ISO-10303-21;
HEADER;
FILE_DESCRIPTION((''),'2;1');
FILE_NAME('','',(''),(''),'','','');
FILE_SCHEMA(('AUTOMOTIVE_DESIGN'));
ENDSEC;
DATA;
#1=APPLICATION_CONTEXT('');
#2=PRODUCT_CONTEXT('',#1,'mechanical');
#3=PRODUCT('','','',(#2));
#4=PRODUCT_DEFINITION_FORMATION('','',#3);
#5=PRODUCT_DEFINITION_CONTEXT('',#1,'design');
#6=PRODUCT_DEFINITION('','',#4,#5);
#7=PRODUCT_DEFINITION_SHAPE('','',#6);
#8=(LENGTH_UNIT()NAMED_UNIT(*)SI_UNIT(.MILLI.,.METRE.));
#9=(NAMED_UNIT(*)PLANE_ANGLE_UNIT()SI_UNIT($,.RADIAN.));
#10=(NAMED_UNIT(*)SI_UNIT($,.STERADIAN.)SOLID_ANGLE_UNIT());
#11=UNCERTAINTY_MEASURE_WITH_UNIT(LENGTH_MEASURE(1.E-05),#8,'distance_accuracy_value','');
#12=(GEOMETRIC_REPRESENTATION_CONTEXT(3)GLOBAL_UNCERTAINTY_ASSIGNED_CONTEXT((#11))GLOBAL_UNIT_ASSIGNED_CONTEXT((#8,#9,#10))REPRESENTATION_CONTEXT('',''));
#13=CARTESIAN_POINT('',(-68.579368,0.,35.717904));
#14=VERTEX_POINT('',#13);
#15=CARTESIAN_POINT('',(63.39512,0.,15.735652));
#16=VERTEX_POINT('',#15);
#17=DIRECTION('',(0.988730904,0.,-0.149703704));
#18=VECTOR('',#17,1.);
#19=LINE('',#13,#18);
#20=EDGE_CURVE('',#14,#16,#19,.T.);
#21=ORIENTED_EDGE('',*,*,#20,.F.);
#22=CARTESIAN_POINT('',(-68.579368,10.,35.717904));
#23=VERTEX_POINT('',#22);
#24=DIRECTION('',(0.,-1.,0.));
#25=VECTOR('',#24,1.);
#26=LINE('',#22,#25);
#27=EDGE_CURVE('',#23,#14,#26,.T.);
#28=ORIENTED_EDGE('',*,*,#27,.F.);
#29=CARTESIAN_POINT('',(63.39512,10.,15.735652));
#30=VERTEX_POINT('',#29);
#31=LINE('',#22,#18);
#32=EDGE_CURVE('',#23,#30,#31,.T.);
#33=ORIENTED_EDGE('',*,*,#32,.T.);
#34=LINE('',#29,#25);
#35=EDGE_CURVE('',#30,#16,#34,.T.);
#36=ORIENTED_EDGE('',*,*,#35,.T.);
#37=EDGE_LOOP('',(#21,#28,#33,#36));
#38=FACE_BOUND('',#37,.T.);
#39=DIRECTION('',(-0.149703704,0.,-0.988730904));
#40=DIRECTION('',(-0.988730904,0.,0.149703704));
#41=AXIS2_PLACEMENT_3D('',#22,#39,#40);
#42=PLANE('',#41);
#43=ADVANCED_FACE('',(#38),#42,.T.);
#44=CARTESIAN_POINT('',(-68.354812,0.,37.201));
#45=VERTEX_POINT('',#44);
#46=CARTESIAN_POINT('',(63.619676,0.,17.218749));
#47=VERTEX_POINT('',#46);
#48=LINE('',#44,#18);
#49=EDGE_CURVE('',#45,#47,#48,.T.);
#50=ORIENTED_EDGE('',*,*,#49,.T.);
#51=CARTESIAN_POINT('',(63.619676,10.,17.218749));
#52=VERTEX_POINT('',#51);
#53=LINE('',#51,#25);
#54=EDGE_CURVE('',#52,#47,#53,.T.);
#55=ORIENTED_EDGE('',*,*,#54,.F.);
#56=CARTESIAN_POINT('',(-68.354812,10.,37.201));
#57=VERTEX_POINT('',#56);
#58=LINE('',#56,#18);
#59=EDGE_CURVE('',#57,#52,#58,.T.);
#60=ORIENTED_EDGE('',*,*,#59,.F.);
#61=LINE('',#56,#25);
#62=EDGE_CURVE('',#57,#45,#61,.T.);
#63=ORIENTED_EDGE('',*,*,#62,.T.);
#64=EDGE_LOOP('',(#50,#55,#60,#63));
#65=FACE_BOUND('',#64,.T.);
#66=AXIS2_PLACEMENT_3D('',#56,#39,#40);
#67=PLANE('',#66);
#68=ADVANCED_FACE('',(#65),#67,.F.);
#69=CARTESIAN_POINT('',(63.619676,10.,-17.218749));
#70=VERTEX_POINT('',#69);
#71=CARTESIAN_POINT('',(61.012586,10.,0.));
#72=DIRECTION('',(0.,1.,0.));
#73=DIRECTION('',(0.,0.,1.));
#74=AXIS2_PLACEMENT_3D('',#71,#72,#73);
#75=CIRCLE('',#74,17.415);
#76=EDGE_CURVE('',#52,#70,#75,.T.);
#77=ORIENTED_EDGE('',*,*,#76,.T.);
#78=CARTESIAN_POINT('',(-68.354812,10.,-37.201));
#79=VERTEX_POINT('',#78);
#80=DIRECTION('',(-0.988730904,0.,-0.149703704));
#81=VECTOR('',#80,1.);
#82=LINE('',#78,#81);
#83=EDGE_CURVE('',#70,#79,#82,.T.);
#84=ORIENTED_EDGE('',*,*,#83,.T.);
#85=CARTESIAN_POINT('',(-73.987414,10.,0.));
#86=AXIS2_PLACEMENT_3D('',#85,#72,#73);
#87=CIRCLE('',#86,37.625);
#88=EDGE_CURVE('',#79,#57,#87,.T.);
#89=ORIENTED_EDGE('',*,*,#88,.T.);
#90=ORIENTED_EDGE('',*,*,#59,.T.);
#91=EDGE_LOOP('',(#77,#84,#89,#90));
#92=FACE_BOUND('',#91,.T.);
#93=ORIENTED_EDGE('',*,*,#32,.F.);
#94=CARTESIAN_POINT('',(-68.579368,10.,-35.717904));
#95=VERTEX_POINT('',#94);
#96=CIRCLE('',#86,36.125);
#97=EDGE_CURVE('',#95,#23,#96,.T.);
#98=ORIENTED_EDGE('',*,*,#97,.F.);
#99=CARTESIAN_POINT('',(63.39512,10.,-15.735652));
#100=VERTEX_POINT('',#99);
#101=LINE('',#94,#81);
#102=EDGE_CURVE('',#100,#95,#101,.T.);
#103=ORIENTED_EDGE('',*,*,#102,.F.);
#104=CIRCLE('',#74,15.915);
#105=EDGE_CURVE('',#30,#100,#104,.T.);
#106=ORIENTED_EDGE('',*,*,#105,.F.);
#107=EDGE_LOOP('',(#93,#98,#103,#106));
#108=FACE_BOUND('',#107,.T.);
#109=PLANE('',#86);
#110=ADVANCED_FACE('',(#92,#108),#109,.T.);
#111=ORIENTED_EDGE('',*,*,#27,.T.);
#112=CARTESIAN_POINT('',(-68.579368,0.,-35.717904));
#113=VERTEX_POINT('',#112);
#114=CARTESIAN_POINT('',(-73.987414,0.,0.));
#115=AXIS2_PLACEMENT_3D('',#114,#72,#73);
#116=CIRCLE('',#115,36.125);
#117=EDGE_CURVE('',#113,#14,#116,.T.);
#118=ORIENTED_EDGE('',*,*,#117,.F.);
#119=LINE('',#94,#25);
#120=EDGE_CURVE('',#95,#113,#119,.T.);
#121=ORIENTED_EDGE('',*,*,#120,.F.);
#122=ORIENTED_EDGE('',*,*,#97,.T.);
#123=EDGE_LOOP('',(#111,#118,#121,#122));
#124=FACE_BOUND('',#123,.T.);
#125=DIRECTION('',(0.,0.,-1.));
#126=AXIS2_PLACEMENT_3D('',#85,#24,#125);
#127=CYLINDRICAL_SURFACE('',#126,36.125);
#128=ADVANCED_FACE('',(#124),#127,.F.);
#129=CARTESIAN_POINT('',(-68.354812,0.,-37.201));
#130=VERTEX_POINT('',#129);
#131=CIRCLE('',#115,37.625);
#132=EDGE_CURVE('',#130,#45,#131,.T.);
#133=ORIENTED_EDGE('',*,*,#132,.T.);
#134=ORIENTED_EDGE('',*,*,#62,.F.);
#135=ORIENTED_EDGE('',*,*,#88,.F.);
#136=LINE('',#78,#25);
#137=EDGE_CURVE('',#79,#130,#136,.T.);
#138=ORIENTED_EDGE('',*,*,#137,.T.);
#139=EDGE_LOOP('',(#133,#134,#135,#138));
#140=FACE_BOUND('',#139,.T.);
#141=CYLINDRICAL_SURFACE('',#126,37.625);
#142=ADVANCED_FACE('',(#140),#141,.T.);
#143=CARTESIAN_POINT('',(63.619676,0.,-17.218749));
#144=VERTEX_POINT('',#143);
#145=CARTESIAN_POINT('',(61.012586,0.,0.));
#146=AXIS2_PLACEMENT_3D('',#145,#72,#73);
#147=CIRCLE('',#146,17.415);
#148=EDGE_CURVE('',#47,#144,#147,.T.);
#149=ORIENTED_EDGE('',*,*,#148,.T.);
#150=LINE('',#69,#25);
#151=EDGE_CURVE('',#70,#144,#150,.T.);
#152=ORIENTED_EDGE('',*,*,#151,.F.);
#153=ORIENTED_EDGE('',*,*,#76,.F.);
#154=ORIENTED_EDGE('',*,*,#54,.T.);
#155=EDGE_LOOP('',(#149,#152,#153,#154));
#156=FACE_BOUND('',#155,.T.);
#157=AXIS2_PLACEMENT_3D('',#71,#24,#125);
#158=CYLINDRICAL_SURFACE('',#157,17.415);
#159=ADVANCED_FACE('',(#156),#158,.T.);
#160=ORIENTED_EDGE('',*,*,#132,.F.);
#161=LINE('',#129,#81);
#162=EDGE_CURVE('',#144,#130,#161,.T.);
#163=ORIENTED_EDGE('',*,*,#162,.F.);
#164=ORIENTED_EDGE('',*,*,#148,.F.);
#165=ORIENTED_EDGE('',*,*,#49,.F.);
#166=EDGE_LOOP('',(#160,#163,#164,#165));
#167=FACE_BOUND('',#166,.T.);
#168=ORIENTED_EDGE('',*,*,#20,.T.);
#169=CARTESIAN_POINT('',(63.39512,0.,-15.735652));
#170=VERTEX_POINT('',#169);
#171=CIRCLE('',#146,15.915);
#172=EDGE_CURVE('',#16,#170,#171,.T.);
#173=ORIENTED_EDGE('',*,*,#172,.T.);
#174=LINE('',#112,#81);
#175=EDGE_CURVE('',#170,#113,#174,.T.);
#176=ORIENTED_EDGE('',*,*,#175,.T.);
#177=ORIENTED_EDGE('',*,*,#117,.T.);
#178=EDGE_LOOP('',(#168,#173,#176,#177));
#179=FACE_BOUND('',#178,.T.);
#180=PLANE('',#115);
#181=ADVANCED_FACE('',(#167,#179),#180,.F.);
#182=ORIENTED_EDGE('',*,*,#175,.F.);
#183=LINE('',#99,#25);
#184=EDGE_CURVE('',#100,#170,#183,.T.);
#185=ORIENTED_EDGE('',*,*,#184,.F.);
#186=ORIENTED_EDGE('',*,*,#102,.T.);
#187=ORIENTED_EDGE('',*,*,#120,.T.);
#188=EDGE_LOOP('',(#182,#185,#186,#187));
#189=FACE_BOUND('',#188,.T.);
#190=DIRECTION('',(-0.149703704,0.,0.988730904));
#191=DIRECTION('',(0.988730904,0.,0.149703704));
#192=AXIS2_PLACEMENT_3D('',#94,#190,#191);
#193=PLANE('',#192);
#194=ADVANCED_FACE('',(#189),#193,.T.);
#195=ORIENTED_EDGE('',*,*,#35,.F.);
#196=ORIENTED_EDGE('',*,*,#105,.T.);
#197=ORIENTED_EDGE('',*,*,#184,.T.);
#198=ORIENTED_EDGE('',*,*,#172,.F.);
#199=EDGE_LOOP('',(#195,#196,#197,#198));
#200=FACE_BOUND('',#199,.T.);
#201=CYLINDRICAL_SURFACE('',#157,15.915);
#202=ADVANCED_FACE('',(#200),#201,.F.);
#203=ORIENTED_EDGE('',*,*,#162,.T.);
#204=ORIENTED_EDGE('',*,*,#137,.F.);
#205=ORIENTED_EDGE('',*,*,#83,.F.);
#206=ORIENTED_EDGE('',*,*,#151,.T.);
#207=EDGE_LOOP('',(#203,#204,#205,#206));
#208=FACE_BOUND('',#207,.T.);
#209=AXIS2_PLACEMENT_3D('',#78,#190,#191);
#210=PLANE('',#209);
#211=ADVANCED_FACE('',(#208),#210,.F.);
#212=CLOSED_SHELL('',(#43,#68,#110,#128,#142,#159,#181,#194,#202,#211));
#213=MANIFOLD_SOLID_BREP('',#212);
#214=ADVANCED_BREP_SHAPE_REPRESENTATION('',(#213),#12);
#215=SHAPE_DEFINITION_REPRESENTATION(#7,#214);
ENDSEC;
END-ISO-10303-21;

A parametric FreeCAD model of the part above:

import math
import FreeCAD as App
import Part
import Sketcher
Q = App.Units.Quantity

doc = App.newDocument("Part")
params = doc.addObject("Spreadsheet::Sheet", "Params")
for row, (alias, value) in enumerate([
    ("pad1_length", "10 mm"),
], start=1):
    params.set(f"A{row}", alias)
    params.set(f"B{row}", "=" + value)
    params.setAlias(f"B{row}", alias)

body = doc.addObject("PartDesign::Body", "Body")

sketch1 = body.newObject("Sketcher::SketchObject", "Sketch")
sketch1.AttachmentSupport = (doc.getObject("XZ_Plane"), [""])
sketch1.MapMode = "FlatFace"
sketch1.addGeometry([
    Part.LineSegment(App.Vector(63.619676, -17.218749, 0), App.Vector(-68.354812, -37.201, 0)),
    Part.ArcOfCircle(Part.Circle(App.Vector(-73.987414, 0, 0), App.Vector(0, 0, 1), 37.625), math.radians(81.390244), math.radians(278.609756)),
    Part.LineSegment(App.Vector(-68.354812, 37.201, 0), App.Vector(63.619676, 17.218749, 0)),
    Part.ArcOfCircle(Part.Circle(App.Vector(61.012586, 0, 0), App.Vector(0, 0, 1), 17.415), math.radians(-81.390244), math.radians(81.390244)),
    Part.LineSegment(App.Vector(-68.579368, -35.717904, 0), App.Vector(63.39512, -15.735652, 0)),
    Part.ArcOfCircle(Part.Circle(App.Vector(61.012586, 0, 0), App.Vector(0, 0, 1), 15.915), math.radians(-81.390244), math.radians(81.390244)),
    Part.LineSegment(App.Vector(63.39512, 15.735652, 0), App.Vector(-68.579368, 35.717904, 0)),
    Part.ArcOfCircle(Part.Circle(App.Vector(-73.987414, 0, 0), App.Vector(0, 0, 1), 36.125), math.radians(81.390244), math.radians(278.609756)),
], False)
sketch1.addConstraint([
    Sketcher.Constraint("Tangent", 0, 2, 1, 2),
    Sketcher.Constraint("Tangent", 1, 1, 2, 1),
    Sketcher.Constraint("Tangent", 2, 2, 3, 2),
    Sketcher.Constraint("Tangent", 3, 1, 0, 1),
    Sketcher.Constraint("Tangent", 4, 2, 5, 1),
    Sketcher.Constraint("Tangent", 5, 2, 6, 1),
    Sketcher.Constraint("Tangent", 6, 2, 7, 1),
    Sketcher.Constraint("Tangent", 7, 2, 4, 1),
    Sketcher.Constraint("Coincident", 5, 3, 3, 3),
    Sketcher.Constraint("Coincident", 7, 3, 1, 3),
    Sketcher.Constraint("Symmetric", 0, 2, 1, 1, -1),
    Sketcher.Constraint("Parallel", 0, 4),
    Sketcher.Constraint("Radius", 1, Q("37.625 mm")),
    Sketcher.Constraint("Radius", 3, Q("17.415 mm")),
    Sketcher.Constraint("Radius", 5, Q("15.915 mm")),
    Sketcher.Constraint("DistanceX", 1, 3, 3, 3, Q("135 mm")),
    Sketcher.Constraint("DistanceX", -1, 1, 4, 2, Q("63.39512 mm")),
])
pad1 = body.newObject("PartDesign::Pad", "Pad")
pad1.Profile = sketch1
pad1.setExpression("Length", "Params.pad1_length")
pad1.Reversed = True

doc.recompute()
